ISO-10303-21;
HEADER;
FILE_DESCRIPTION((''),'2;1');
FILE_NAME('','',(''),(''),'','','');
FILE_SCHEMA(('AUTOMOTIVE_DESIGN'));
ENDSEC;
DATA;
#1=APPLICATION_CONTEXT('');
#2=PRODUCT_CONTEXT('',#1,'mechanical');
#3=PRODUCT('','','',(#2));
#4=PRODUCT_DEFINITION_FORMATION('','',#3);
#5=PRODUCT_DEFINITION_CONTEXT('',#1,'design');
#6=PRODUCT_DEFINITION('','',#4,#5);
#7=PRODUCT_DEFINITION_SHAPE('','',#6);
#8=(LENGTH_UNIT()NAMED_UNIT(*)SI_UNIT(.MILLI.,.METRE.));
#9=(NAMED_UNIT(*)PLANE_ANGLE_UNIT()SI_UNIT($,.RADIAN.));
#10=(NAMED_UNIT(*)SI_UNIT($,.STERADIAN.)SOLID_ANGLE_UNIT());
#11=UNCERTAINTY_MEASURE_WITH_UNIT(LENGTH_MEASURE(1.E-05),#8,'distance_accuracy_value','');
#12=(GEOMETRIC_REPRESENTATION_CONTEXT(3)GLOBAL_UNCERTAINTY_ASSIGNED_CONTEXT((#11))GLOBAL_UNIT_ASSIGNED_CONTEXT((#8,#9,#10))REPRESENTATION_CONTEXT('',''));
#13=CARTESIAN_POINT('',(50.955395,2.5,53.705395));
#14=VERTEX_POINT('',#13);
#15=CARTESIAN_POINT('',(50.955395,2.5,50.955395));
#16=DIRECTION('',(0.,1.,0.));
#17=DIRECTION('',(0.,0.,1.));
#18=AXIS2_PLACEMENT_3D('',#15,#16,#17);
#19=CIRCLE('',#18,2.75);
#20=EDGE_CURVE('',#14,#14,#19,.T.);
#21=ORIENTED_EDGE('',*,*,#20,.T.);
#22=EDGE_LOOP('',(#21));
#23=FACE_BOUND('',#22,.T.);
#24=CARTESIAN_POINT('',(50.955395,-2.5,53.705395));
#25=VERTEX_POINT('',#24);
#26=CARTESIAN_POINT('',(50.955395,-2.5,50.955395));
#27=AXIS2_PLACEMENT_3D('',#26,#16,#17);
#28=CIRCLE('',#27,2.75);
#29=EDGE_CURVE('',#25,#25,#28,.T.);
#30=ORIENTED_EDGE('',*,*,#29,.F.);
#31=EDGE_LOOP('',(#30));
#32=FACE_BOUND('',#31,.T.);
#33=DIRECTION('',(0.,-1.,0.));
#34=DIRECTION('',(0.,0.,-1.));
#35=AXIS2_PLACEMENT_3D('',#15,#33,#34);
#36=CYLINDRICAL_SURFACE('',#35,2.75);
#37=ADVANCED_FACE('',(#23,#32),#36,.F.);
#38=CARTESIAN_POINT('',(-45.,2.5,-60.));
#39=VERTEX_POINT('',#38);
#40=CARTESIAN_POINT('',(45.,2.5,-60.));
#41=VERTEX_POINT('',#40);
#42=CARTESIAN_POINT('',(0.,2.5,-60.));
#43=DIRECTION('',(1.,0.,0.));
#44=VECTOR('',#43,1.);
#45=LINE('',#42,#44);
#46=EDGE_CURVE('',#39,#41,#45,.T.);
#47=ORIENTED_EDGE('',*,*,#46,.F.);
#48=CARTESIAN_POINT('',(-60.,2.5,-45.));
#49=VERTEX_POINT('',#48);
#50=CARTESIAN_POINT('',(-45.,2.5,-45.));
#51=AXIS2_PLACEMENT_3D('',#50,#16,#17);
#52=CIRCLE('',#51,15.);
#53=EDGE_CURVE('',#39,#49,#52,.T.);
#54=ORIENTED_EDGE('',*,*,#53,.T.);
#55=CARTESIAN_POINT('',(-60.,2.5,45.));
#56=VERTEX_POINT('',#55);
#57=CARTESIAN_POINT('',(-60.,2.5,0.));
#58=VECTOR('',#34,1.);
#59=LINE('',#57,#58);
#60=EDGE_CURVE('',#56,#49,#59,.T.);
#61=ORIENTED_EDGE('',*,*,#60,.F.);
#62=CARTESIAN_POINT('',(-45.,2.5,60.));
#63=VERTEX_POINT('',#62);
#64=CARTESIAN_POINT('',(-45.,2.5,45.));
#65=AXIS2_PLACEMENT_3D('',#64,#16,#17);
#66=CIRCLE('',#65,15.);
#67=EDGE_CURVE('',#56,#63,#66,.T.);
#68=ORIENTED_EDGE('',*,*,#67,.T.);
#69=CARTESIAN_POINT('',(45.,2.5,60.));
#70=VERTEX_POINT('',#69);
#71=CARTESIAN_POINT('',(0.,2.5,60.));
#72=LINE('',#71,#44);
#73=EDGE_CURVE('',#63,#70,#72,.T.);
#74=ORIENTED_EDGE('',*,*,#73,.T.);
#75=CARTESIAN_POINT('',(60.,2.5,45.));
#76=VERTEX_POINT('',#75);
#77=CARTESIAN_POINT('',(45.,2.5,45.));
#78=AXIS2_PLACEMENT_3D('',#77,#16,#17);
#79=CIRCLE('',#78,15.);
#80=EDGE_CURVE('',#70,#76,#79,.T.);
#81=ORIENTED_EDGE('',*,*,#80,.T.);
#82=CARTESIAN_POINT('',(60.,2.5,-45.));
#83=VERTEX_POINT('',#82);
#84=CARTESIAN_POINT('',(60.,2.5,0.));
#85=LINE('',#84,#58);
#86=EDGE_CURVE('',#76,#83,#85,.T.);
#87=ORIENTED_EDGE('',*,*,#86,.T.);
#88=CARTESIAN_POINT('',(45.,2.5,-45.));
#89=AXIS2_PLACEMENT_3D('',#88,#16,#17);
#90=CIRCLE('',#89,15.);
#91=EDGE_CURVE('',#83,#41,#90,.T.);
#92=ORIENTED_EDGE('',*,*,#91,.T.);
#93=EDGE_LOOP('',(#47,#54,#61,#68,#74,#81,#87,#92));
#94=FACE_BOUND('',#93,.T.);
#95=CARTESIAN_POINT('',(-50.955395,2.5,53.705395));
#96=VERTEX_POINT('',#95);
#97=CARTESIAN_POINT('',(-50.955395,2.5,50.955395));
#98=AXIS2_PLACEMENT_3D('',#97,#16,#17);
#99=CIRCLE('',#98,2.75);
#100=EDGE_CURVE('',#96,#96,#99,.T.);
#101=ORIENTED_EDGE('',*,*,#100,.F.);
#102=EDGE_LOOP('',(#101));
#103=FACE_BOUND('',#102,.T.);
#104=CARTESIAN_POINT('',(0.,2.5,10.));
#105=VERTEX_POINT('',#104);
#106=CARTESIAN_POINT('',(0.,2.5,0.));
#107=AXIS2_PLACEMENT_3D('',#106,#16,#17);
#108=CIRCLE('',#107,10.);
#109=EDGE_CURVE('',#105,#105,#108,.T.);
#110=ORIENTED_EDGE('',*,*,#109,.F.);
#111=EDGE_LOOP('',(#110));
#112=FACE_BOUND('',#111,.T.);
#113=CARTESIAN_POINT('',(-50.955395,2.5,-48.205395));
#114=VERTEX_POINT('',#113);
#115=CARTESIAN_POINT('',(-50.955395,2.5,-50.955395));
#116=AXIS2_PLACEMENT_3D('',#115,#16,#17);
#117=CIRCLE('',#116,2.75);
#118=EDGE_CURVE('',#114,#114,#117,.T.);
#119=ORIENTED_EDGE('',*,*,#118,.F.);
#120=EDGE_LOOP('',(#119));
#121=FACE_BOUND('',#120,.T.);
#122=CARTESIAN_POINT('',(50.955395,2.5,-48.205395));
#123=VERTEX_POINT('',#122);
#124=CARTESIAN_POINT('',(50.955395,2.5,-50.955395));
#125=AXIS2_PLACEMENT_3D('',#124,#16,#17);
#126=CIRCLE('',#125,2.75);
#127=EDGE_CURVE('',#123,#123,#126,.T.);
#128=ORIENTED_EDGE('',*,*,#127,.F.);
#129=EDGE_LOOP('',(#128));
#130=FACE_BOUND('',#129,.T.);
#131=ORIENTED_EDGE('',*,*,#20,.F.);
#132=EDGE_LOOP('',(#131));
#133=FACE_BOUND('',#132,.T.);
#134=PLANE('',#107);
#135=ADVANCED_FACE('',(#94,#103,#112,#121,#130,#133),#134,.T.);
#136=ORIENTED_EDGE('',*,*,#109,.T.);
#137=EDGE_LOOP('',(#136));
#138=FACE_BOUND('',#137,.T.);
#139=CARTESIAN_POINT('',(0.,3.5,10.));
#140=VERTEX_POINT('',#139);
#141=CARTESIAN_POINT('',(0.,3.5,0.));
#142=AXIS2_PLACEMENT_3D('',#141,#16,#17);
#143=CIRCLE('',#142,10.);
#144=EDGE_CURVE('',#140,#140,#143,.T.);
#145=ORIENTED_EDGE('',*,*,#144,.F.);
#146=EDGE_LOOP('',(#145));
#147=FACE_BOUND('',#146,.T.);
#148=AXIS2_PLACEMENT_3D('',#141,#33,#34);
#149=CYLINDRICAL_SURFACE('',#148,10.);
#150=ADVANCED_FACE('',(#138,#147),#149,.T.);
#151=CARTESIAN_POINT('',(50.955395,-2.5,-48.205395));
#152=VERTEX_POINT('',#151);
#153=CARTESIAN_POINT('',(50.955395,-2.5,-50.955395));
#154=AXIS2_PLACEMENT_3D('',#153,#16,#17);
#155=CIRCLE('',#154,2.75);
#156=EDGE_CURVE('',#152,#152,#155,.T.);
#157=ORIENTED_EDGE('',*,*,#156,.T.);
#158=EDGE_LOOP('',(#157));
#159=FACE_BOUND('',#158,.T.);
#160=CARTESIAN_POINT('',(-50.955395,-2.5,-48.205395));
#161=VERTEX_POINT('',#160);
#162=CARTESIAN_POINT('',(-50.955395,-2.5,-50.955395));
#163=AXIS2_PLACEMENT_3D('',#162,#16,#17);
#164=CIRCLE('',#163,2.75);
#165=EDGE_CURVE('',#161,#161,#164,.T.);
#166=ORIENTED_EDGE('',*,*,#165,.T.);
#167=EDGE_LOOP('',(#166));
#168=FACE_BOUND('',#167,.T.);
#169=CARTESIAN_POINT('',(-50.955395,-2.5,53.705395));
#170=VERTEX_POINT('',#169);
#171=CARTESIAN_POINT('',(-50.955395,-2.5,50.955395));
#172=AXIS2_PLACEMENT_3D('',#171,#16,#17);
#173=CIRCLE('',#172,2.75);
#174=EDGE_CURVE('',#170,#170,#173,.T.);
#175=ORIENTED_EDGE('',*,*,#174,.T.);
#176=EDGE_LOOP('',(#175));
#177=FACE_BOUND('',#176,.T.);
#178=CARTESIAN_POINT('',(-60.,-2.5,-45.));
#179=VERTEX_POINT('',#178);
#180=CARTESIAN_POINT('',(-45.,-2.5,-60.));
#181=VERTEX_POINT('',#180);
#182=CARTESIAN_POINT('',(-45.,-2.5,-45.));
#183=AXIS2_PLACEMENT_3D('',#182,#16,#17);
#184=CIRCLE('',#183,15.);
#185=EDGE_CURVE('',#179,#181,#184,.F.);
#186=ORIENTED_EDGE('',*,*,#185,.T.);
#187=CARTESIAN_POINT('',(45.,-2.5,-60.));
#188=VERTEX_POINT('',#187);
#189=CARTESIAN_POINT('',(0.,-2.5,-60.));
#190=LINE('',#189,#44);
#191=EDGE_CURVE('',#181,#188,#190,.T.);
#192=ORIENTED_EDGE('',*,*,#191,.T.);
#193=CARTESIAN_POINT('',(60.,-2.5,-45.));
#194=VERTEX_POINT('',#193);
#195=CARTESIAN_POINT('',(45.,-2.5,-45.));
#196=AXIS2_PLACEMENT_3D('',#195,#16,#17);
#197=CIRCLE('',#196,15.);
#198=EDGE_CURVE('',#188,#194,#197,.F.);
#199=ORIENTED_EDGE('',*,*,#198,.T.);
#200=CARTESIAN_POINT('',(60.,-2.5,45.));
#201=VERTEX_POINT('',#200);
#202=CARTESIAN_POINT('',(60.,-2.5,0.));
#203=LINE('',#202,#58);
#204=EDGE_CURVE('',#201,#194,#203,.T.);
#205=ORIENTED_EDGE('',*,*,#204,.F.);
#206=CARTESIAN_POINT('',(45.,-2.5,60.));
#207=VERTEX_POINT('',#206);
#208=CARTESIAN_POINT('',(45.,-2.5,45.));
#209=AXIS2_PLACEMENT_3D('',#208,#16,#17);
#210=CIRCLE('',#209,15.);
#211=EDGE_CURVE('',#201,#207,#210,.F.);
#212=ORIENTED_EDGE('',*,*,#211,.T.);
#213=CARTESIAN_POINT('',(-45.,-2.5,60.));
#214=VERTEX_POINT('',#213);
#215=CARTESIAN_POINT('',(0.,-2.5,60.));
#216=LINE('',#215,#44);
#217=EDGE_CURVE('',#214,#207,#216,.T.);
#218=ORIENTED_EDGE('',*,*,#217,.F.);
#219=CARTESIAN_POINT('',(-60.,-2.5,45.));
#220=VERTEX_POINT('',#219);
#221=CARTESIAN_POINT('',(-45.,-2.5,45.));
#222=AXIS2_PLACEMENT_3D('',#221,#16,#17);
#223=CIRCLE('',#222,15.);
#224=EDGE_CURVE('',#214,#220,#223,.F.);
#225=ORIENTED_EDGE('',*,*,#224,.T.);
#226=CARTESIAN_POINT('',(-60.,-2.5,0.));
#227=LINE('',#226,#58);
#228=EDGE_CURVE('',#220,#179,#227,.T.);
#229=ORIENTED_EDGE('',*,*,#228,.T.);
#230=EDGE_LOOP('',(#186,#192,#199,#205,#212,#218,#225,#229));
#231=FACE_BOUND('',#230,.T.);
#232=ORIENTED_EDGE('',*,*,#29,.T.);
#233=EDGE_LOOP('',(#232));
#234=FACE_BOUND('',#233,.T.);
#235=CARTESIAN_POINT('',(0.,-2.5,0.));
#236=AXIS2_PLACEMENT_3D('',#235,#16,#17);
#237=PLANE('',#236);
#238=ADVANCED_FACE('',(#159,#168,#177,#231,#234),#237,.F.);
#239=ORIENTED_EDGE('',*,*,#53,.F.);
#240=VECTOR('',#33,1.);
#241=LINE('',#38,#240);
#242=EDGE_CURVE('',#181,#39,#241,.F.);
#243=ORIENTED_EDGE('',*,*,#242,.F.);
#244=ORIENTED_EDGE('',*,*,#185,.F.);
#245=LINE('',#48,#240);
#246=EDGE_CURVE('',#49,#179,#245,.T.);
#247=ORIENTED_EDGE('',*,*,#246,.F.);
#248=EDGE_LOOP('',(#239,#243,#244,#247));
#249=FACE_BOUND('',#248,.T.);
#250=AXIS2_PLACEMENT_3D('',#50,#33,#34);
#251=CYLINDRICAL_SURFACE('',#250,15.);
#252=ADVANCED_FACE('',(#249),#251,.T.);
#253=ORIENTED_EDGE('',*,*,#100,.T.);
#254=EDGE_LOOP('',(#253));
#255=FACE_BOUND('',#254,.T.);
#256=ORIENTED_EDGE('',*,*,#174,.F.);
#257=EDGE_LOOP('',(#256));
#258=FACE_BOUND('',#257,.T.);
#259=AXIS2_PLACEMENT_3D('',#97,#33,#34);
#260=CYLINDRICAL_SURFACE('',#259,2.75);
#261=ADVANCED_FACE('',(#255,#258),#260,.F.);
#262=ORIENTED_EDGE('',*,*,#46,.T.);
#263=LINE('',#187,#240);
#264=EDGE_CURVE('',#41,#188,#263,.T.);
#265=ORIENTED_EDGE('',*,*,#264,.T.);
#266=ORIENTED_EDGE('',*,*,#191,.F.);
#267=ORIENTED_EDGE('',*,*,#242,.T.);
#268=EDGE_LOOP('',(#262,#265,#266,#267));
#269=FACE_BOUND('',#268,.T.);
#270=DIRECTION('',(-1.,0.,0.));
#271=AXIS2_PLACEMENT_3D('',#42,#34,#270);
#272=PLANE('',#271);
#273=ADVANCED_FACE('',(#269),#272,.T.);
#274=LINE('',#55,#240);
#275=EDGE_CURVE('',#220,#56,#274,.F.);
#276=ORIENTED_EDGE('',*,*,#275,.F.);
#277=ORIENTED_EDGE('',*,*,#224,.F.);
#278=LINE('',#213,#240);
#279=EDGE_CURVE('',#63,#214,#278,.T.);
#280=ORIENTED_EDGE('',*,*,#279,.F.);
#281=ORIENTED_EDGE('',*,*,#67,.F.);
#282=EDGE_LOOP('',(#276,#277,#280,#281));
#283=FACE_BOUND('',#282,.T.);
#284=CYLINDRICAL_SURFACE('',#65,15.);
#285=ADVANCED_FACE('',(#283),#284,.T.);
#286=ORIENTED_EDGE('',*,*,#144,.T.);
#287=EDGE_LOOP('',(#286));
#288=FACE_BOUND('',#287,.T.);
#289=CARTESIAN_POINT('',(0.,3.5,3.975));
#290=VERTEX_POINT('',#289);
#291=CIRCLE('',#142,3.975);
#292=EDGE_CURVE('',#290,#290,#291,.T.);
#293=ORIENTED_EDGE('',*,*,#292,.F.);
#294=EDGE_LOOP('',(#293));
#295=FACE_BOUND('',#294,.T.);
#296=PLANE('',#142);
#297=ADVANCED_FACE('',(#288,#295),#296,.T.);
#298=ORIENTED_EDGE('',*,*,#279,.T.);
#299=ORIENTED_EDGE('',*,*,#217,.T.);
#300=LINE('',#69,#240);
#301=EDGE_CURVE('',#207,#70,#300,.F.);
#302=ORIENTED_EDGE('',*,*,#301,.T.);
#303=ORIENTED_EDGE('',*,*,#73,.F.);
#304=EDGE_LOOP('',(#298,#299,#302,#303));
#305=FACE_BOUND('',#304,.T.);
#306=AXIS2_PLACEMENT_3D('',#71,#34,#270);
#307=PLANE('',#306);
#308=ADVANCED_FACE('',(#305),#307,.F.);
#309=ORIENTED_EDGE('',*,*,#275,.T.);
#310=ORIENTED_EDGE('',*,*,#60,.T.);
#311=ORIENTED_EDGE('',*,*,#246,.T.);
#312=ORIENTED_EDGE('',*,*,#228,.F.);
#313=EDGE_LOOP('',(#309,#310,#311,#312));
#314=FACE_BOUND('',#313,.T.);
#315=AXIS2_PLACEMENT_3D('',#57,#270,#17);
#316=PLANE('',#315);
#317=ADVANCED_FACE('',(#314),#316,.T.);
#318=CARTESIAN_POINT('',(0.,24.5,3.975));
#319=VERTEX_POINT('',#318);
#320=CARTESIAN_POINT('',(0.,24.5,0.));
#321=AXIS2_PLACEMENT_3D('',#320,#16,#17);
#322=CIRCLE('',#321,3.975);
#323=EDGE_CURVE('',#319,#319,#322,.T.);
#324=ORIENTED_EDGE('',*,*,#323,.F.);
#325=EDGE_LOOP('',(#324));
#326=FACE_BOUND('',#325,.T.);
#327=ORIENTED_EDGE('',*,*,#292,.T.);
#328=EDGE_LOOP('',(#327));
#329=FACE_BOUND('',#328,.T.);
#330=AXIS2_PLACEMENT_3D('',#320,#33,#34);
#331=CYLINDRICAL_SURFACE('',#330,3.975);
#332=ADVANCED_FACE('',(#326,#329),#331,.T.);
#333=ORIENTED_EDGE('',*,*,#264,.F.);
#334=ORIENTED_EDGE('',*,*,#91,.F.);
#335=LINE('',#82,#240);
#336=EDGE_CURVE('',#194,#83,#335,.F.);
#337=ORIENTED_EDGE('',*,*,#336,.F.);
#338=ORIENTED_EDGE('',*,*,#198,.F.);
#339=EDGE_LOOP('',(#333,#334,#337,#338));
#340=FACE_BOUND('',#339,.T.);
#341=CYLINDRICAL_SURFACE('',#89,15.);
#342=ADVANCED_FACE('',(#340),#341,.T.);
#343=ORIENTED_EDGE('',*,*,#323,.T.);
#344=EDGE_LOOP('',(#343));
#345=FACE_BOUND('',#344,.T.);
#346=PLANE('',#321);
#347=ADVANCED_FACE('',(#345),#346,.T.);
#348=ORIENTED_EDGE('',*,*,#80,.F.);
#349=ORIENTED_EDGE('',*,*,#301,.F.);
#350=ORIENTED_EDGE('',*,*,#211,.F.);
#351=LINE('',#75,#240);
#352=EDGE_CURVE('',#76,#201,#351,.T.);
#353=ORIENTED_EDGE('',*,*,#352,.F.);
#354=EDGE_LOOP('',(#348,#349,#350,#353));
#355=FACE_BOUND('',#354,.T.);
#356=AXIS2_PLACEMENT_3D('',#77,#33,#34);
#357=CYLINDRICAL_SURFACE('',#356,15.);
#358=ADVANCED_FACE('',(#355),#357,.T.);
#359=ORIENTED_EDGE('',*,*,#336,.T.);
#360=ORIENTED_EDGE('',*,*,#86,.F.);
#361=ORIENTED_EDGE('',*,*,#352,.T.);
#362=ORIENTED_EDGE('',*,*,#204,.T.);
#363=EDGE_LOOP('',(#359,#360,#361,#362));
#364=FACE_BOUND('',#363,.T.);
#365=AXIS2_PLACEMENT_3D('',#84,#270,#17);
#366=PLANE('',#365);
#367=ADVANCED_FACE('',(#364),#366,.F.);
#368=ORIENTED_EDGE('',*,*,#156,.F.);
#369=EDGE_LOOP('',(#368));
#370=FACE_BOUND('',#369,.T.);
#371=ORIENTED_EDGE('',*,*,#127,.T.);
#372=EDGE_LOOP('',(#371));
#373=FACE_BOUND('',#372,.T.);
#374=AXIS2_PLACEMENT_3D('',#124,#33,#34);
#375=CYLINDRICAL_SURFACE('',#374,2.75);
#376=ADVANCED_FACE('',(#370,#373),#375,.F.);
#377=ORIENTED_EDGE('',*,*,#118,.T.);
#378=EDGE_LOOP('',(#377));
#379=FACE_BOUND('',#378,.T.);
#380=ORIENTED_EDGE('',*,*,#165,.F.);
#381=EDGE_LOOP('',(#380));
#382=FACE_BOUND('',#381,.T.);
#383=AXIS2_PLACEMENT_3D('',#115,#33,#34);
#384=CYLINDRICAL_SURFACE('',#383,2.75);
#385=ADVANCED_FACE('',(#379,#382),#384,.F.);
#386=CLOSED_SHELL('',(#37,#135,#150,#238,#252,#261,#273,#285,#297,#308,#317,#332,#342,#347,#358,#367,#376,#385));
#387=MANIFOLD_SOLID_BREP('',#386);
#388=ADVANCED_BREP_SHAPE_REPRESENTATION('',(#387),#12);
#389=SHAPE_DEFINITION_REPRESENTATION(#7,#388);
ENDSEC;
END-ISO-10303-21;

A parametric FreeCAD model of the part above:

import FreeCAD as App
import Part
import Sketcher
Q = App.Units.Quantity


def edges_at(feature, points):
    """Names of the edges that pass closest to the given points."""
    edges = feature.Shape.Edges
    near = lambda p: min(range(len(edges)), key=lambda i: edges[i].distToShape(Part.Vertex(*p))[0])
    return sorted({f"Edge{near(p) + 1}" for p in points})

doc = App.newDocument("Part")
body = doc.addObject("PartDesign::Body", "Body")

sketch1 = body.newObject("Sketcher::SketchObject", "Sketch")
sketch1.AttachmentSupport = (doc.getObject("XZ_Plane"), [""])
sketch1.MapMode = "FlatFace"
sketch1.addGeometry(Part.LineSegment(App.Vector(-60, -60, 0), App.Vector(-60, 60, 0)), False)
sketch1.addGeometry(Part.LineSegment(App.Vector(-60, 60, 0), App.Vector(60, 60, 0)), False)
sketch1.addGeometry(Part.LineSegment(App.Vector(60, 60, 0), App.Vector(60, -60, 0)), False)
sketch1.addGeometry(Part.LineSegment(App.Vector(60, -60, 0), App.Vector(-60, -60, 0)), False)
sketch1.addGeometry(Part.Circle(App.Vector(-50.955395, 50.955395, 0), App.Vector(0, 0, 1), 2.75), False)
sketch1.addGeometry(Part.Circle(App.Vector(50.955395, 50.955395, 0), App.Vector(0, 0, 1), 2.75), False)
sketch1.addGeometry(Part.Circle(App.Vector(-50.955395, -50.955395, 0), App.Vector(0, 0, 1), 2.75), False)
sketch1.addGeometry(Part.Circle(App.Vector(50.955395, -50.955395, 0), App.Vector(0, 0, 1), 2.75), False)
sketch1.addConstraint(Sketcher.Constraint("Coincident", 0, 2, 1, 1))
sketch1.addConstraint(Sketcher.Constraint("Coincident", 1, 2, 2, 1))
sketch1.addConstraint(Sketcher.Constraint("Coincident", 2, 2, 3, 1))
sketch1.addConstraint(Sketcher.Constraint("Coincident", 3, 2, 0, 1))
sketch1.addConstraint(Sketcher.Constraint("Vertical", 0))
sketch1.addConstraint(Sketcher.Constraint("Horizontal", 1))
sketch1.addConstraint(Sketcher.Constraint("Vertical", 2))
sketch1.addConstraint(Sketcher.Constraint("Horizontal", 3))
sketch1.addConstraint(Sketcher.Constraint("Equal", 4, 5))
sketch1.addConstraint(Sketcher.Constraint("Equal", 5, 6))
sketch1.addConstraint(Sketcher.Constraint("Equal", 6, 7))
sketch1.addConstraint(Sketcher.Constraint("Symmetric", 5, 3, 6, 3, -1, 1))
sketch1.addConstraint(Sketcher.Constraint("Symmetric", 4, 3, 7, 3, -1, 1))
sketch1.addConstraint(Sketcher.Constraint("Symmetric", 0, 2, 2, 2, -1, 1))
sketch1.addConstraint(Sketcher.Constraint("Symmetric", 4, 3, 5, 3, -2))
sketch1.addConstraint(Sketcher.Constraint("Equal", 3, 0))
sketch1.addConstraint(Sketcher.Constraint("Diameter", 4, Q("5.5 mm")))
sketch1.addConstraint(Sketcher.Constraint("DistanceX", 1, 1, 1, 2, Q("120 mm")))
sketch1.addConstraint(Sketcher.Constraint("DistanceX", 4, 3, 5, 3, Q("101.910791 mm")))
sketch1.addConstraint(Sketcher.Constraint("DistanceY", 6, 3, 4, 3, Q("101.910791 mm")))
pad1 = body.newObject("PartDesign::Pad", "Pad")
pad1.Profile = sketch1
pad1.Length = 5
pad1.Midplane = True
doc.recompute()

fillet = body.newObject("PartDesign::Fillet", "Fillet")
fillet.Base = (pad1, edges_at(pad1, [
    (-60, 0, 60),
    (-60, 0, -60),
    (60, 0, -60),
    (60, 0, 60),
]))
fillet.Radius = 15

sketch2 = body.newObject("Sketcher::SketchObject", "Sketch001")
sketch2.AttachmentSupport = (doc.getObject("XZ_Plane"), [""])
sketch2.MapMode = "FlatFace"
sketch2.AttachmentOffset = App.Placement(App.Vector(0, 0, -2.5), App.Rotation())
sketch2.addGeometry(Part.Circle(App.Vector(0, 0, 0), App.Vector(0, 0, 1), 3.975), False)
sketch2.addConstraint(Sketcher.Constraint("Coincident", 0, 3, -1, 1))
sketch2.addConstraint(Sketcher.Constraint("Diameter", 0, Q("7.95 mm")))
pad2 = body.newObject("PartDesign::Pad", "Pad001")
pad2.Profile = sketch2
pad2.Length = 22
pad2.Reversed = True

sketch3 = body.newObject("Sketcher::SketchObject", "Sketch002")
sketch3.AttachmentSupport = (doc.getObject("XZ_Plane"), [""])
sketch3.MapMode = "FlatFace"
sketch3.AttachmentOffset = App.Placement(App.Vector(0, 0, -2.5), App.Rotation())
sketch3.addGeometry(Part.Circle(App.Vector(0, 0, 0), App.Vector(0, 0, 1), 10), False)
sketch3.addConstraint(Sketcher.Constraint("Coincident", 0, 3, -1, 1))
sketch3.addConstraint(Sketcher.Constraint("Diameter", 0, Q("20 mm")))
pad3 = body.newObject("PartDesign::Pad", "Pad002")
pad3.Profile = sketch3
pad3.Length = 1
pad3.Reversed = True

doc.recompute()
